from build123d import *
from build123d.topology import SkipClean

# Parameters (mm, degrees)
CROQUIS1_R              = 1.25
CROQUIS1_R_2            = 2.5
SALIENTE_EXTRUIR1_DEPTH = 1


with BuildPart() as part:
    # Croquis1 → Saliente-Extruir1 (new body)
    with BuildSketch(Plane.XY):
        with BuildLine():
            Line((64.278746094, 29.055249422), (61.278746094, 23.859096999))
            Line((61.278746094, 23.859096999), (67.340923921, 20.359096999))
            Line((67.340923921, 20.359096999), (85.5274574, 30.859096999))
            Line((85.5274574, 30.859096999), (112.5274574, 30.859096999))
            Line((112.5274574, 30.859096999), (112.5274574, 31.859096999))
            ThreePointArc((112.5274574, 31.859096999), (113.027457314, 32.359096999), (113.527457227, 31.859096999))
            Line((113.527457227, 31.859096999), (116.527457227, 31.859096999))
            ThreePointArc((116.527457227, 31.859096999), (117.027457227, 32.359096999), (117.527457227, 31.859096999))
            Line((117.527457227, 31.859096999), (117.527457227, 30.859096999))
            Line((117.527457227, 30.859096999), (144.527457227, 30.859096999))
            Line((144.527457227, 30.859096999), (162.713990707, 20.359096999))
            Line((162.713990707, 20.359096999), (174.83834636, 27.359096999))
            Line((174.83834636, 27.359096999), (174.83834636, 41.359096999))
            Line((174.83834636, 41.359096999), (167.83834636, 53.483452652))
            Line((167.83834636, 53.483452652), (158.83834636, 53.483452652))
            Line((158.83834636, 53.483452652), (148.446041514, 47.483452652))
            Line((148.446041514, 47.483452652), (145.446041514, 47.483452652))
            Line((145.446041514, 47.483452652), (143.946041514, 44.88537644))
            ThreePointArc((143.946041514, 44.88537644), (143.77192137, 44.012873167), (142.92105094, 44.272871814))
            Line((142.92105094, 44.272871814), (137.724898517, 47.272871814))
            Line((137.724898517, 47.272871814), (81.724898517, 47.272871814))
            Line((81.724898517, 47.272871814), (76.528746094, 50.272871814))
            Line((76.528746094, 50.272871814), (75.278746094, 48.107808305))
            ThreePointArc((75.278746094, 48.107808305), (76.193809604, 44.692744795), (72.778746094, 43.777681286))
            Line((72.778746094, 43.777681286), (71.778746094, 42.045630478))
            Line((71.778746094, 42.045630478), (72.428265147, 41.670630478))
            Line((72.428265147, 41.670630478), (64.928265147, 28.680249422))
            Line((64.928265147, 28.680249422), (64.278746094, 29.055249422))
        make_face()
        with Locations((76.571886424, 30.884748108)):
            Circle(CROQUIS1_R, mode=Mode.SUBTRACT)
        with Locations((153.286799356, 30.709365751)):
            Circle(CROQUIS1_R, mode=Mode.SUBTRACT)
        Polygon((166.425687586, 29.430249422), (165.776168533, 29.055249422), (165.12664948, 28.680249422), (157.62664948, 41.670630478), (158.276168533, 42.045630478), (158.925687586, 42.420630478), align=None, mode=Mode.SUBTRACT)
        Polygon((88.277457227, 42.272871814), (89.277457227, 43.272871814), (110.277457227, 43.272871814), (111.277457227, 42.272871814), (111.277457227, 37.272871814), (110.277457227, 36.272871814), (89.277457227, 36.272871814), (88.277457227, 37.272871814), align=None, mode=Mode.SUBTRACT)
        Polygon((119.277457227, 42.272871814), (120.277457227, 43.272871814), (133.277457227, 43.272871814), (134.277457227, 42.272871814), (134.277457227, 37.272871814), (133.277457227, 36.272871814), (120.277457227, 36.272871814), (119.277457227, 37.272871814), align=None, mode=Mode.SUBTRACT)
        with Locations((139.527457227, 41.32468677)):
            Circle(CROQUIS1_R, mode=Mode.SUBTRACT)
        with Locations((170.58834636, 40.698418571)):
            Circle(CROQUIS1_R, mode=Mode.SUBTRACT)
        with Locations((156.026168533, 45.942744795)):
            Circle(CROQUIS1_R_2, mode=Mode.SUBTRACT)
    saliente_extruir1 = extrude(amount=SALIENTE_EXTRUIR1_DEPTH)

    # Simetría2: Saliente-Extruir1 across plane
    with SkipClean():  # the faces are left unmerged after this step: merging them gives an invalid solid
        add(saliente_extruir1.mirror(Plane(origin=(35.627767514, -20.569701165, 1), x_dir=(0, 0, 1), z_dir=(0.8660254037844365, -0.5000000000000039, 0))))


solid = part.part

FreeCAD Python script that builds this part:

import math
import FreeCAD as App
import Part
import Sketcher
Q = App.Units.Quantity


def add_polygon(sketch, points):
    """Adds a closed chain of lines whose ends are joined by coincident constraints."""
    first, n = sketch.GeometryCount, len(points)
    for a, b in zip(points, points[1:] + points[:1]):
        sketch.addGeometry(Part.LineSegment(App.Vector(*a, 0), App.Vector(*b, 0)), False)
    for i in range(n):
        sketch.addConstraint(Sketcher.Constraint("Coincident", first + i, 2, first + (i + 1) % n, 1))

doc = App.newDocument("Part")
body = doc.addObject("PartDesign::Body", "Body")

# Sketch on XY plane
sketch1 = body.newObject("Sketcher::SketchObject", "Sketch")
sketch1.AttachmentSupport = (doc.getObject("XY_Plane"), [""])
sketch1.MapMode = "FlatFace"
sketch1.addGeometry(Part.LineSegment(App.Vector(64.28, 29.06, 0), App.Vector(61.28, 23.86, 0)), False)  # 0
sketch1.addGeometry(Part.LineSegment(App.Vector(61.28, 23.86, 0), App.Vector(67.34, 20.36, 0)), False)  # 1
sketch1.addGeometry(Part.LineSegment(App.Vector(67.34, 20.36, 0), App.Vector(85.53, 30.86, 0)), False)  # 2
sketch1.addGeometry(Part.LineSegment(App.Vector(85.53, 30.86, 0), App.Vector(112.53, 30.86, 0)), False)  # 3
sketch1.addGeometry(Part.LineSegment(App.Vector(112.53, 30.86, 0), App.Vector(112.53, 31.86, 0)), False)  # 4
sketch1.addGeometry(Part.ArcOfCircle(Part.Circle(App.Vector(113.03, 31.86, 0), App.Vector(0, 0, 1), 0.5), math.radians(0), math.radians(180)), False)  # 5
sketch1.addGeometry(Part.LineSegment(App.Vector(113.53, 31.86, 0), App.Vector(116.53, 31.86, 0)), False)  # 6
sketch1.addGeometry(Part.ArcOfCircle(Part.Circle(App.Vector(117.03, 31.86, 0), App.Vector(0, 0, 1), 0.5), math.radians(0), math.radians(180)), False)  # 7
sketch1.addGeometry(Part.LineSegment(App.Vector(117.53, 31.86, 0), App.Vector(117.53, 30.86, 0)), False)  # 8
sketch1.addGeometry(Part.LineSegment(App.Vector(117.53, 30.86, 0), App.Vector(144.53, 30.86, 0)), False)  # 9
sketch1.addGeometry(Part.LineSegment(App.Vector(144.53, 30.86, 0), App.Vector(162.71, 20.36, 0)), False)  # 10
sketch1.addGeometry(Part.LineSegment(App.Vector(162.71, 20.36, 0), App.Vector(174.84, 27.36, 0)), False)  # 11
sketch1.addGeometry(Part.LineSegment(App.Vector(174.84, 27.36, 0), App.Vector(174.84, 41.36, 0)), False)  # 12
sketch1.addGeometry(Part.LineSegment(App.Vector(174.84, 41.36, 0), App.Vector(167.84, 53.48, 0)), False)  # 13
sketch1.addGeometry(Part.LineSegment(App.Vector(167.84, 53.48, 0), App.Vector(158.84, 53.48, 0)), False)  # 14
sketch1.addGeometry(Part.LineSegment(App.Vector(158.84, 53.48, 0), App.Vector(148.45, 47.48, 0)), False)  # 15
sketch1.addGeometry(Part.LineSegment(App.Vector(148.45, 47.48, 0), App.Vector(145.45, 47.48, 0)), False)  # 16
sketch1.addGeometry(Part.LineSegment(App.Vector(145.45, 47.48, 0), App.Vector(143.95, 44.89, 0)), False)  # 17
sketch1.addGeometry(Part.ArcOfCircle(Part.Circle(App.Vector(143.46, 44.53, 0), App.Vector(0, 0, 1), 0.6), math.radians(-155), math.radians(37)), False)  # 18
sketch1.addGeometry(Part.LineSegment(App.Vector(142.92, 44.27, 0), App.Vector(137.72, 47.27, 0)), False)  # 19
sketch1.addGeometry(Part.LineSegment(App.Vector(137.72, 47.27, 0), App.Vector(81.72, 47.27, 0)), False)  # 20
sketch1.addGeometry(Part.LineSegment(App.Vector(81.72, 47.27, 0), App.Vector(76.53, 50.27, 0)), False)  # 21
sketch1.addGeometry(Part.LineSegment(App.Vector(76.53, 50.27, 0), App.Vector(75.28, 48.11, 0)), False)  # 22
sketch1.addGeometry(Part.ArcOfCircle(Part.Circle(App.Vector(74.03, 45.94, 0), App.Vector(0, 0, 1), 2.5), math.radians(-120), math.radians(60)), False)  # 23
sketch1.addGeometry(Part.LineSegment(App.Vector(72.78, 43.78, 0), App.Vector(71.78, 42.05, 0)), False)  # 24
sketch1.addGeometry(Part.LineSegment(App.Vector(71.78, 42.05, 0), App.Vector(72.43, 41.67, 0)), False)  # 25
sketch1.addGeometry(Part.LineSegment(App.Vector(72.43, 41.67, 0), App.Vector(64.93, 28.68, 0)), False)  # 26
sketch1.addGeometry(Part.LineSegment(App.Vector(64.93, 28.68, 0), App.Vector(64.28, 29.06, 0)), False)  # 27
sketch1.addGeometry(Part.Circle(App.Vector(76.57, 30.88, 0), App.Vector(0, 0, 1), 1.25), False)  # 28
sketch1.addGeometry(Part.Circle(App.Vector(153.29, 30.71, 0), App.Vector(0, 0, 1), 1.25), False)  # 29
add_polygon(sketch1, [(158.93, 42.42), (166.43, 29.43), (165.13, 28.68), (157.63, 41.67)])  # lines 30-33
add_polygon(sketch1, [(88.28, 37.27), (88.28, 42.27), (89.28, 43.27), (110.28, 43.27), (111.28, 42.27), (111.28, 37.27), (110.28, 36.27), (89.28, 36.27)])  # lines 34-41
add_polygon(sketch1, [(119.28, 37.27), (119.28, 42.27), (120.28, 43.27), (133.28, 43.27), (134.28, 42.27), (134.28, 37.27), (133.28, 36.27), (120.28, 36.27)])  # lines 42-49
sketch1.addGeometry(Part.Circle(App.Vector(139.53, 41.32, 0), App.Vector(0, 0, 1), 1.25), False)  # 50
sketch1.addGeometry(Part.Circle(App.Vector(170.59, 40.7, 0), App.Vector(0, 0, 1), 1.25), False)  # 51
sketch1.addGeometry(Part.Circle(App.Vector(156.03, 45.94, 0), App.Vector(0, 0, 1), 2.5), False)  # 52
sketch1.addConstraint(Sketcher.Constraint("Coincident", 0, 2, 1, 1))
sketch1.addConstraint(Sketcher.Constraint("Coincident", 1, 2, 2, 1))
sketch1.addConstraint(Sketcher.Constraint("Coincident", 2, 2, 3, 1))
sketch1.addConstraint(Sketcher.Constraint("Coincident", 3, 2, 4, 1))
sketch1.addConstraint(Sketcher.Constraint("Tangent", 4, 2, 5, 2))
sketch1.addConstraint(Sketcher.Constraint("Coincident", 5, 1, 6, 1))
sketch1.addConstraint(Sketcher.Constraint("Coincident", 6, 2, 7, 2))
sketch1.addConstraint(Sketcher.Constraint("Tangent", 7, 1, 8, 1))
sketch1.addConstraint(Sketcher.Constraint("Coincident", 8, 2, 9, 1))
sketch1.addConstraint(Sketcher.Constraint("Coincident", 9, 2, 10, 1))
sketch1.addConstraint(Sketcher.Constraint("Coincident", 10, 2, 11, 1))
sketch1.addConstraint(Sketcher.Constraint("Coincident", 11, 2, 12, 1))
sketch1.addConstraint(Sketcher.Constraint("Coincident", 12, 2, 13, 1))
sketch1.addConstraint(Sketcher.Constraint("Coincident", 13, 2, 14, 1))
sketch1.addConstraint(Sketcher.Constraint("Coincident", 14, 2, 15, 1))
sketch1.addConstraint(Sketcher.Constraint("Coincident", 15, 2, 16, 1))
sketch1.addConstraint(Sketcher.Constraint("Coincident", 16, 2, 17, 1))
sketch1.addConstraint(Sketcher.Constraint("Coincident", 17, 2, 18, 2))
sketch1.addConstraint(Sketcher.Constraint("Coincident", 18, 1, 19, 1))
sketch1.addConstraint(Sketcher.Constraint("Coincident", 19, 2, 20, 1))
sketch1.addConstraint(Sketcher.Constraint("Coincident", 20, 2, 21, 1))
sketch1.addConstraint(Sketcher.Constraint("Coincident", 21, 2, 22, 1))
sketch1.addConstraint(Sketcher.Constraint("Coincident", 22, 2, 23, 2))
sketch1.addConstraint(Sketcher.Constraint("Coincident", 23, 1, 24, 1))
sketch1.addConstraint(Sketcher.Constraint("Coincident", 24, 2, 25, 1))
sketch1.addConstraint(Sketcher.Constraint("Coincident", 25, 2, 26, 1))
sketch1.addConstraint(Sketcher.Constraint("Coincident", 26, 2, 27, 1))
sketch1.addConstraint(Sketcher.Constraint("Coincident", 27, 2, 0, 1))
sketch1.addConstraint(Sketcher.Constraint("Horizontal", 3))
sketch1.addConstraint(Sketcher.Constraint("Vertical", 4))
sketch1.addConstraint(Sketcher.Constraint("Horizontal", 6))
sketch1.addConstraint(Sketcher.Constraint("Vertical", 8))
sketch1.addConstraint(Sketcher.Constraint("Horizontal", 9))
sketch1.addConstraint(Sketcher.Constraint("Vertical", 12))
sketch1.addConstraint(Sketcher.Constraint("Horizontal", 14))
sketch1.addConstraint(Sketcher.Constraint("Horizontal", 16))
sketch1.addConstraint(Sketcher.Constraint("Horizontal", 20))
sketch1.addConstraint(Sketcher.Constraint("Vertical", 34))
sketch1.addConstraint(Sketcher.Constraint("Horizontal", 36))
sketch1.addConstraint(Sketcher.Constraint("Vertical", 38))
sketch1.addConstraint(Sketcher.Constraint("Horizontal", 40))
sketch1.addConstraint(Sketcher.Constraint("Vertical", 42))
sketch1.addConstraint(Sketcher.Constraint("Horizontal", 44))
sketch1.addConstraint(Sketcher.Constraint("Vertical", 46))
sketch1.addConstraint(Sketcher.Constraint("Horizontal", 48))
sketch1.addConstraint(Sketcher.Constraint("Equal", 5, 7))
sketch1.addConstraint(Sketcher.Constraint("Equal", 28, 29))
sketch1.addConstraint(Sketcher.Constraint("Equal", 29, 50))
sketch1.addConstraint(Sketcher.Constraint("Equal", 50, 51))
sketch1.addConstraint(Sketcher.Constraint("Equal", 23, 52))
sketch1.addConstraint(Sketcher.Constraint("Perpendicular", 0, 1))
sketch1.addConstraint(Sketcher.Constraint("Parallel", 1, 10))
sketch1.addConstraint(Sketcher.Constraint("Parallel", 2, 11))
sketch1.addConstraint(Sketcher.Constraint("Perpendicular", 11, 13))
sketch1.addConstraint(Sketcher.Constraint("Perpendicular", 13, 15))
sketch1.addConstraint(Sketcher.Constraint("Perpendicular", 10, 17))
sketch1.addConstraint(Sketcher.Constraint("Perpendicular", 17, 19))
sketch1.addConstraint(Sketcher.Constraint("Parallel", 19, 21))
sketch1.addConstraint(Sketcher.Constraint("Perpendicular", 21, 22))
sketch1.addConstraint(Sketcher.Constraint("Parallel", 22, 24))
sketch1.addConstraint(Sketcher.Constraint("Perpendicular", 24, 25))
sketch1.addConstraint(Sketcher.Constraint("Perpendicular", 25, 26))
sketch1.addConstraint(Sketcher.Constraint("Perpendicular", 26, 27))
sketch1.addConstraint(Sketcher.Constraint("Perpendicular", 15, 30))
sketch1.addConstraint(Sketcher.Constraint("Perpendicular", 30, 31))
sketch1.addConstraint(Sketcher.Constraint("Perpendicular", 31, 32))
sketch1.addConstraint(Sketcher.Constraint("Perpendicular", 32, 33))
sketch1.addConstraint(Sketcher.Constraint("Perpendicular", 35, 37))
sketch1.addConstraint(Sketcher.Constraint("Perpendicular", 37, 39))
sketch1.addConstraint(Sketcher.Constraint("Perpendicular", 39, 41))
sketch1.addConstraint(Sketcher.Constraint("Perpendicular", 41, 43))
sketch1.addConstraint(Sketcher.Constraint("Perpendicular", 43, 45))
sketch1.addConstraint(Sketcher.Constraint("Perpendicular", 45, 47))
sketch1.addConstraint(Sketcher.Constraint("Perpendicular", 47, 49))
sketch1.addConstraint(Sketcher.Constraint("Horizontal", 5, 3, 7, 3))
sketch1.addConstraint(Sketcher.Constraint("Horizontal", 23, 3, 52, 3))
sketch1.addConstraint(Sketcher.Constraint("Horizontal", 4, 2, 5, 1))
sketch1.addConstraint(Sketcher.Constraint("Horizontal", 3, 2, 8, 2))
sketch1.addConstraint(Sketcher.Constraint("Horizontal", 1, 2, 10, 2))
sketch1.addConstraint(Sketcher.Constraint("Horizontal", 26, 2, 31, 2))
sketch1.addConstraint(Sketcher.Constraint("Horizontal", 25, 2, 32, 2))
sketch1.addConstraint(Sketcher.Constraint("Horizontal", 34, 2, 37, 2))
sketch1.addConstraint(Sketcher.Constraint("Horizontal", 38, 2, 41, 2))
sketch1.addConstraint(Sketcher.Constraint("Horizontal", 37, 2, 42, 2))
sketch1.addConstraint(Sketcher.Constraint("Horizontal", 36, 2, 43, 2))
sketch1.addConstraint(Sketcher.Constraint("Horizontal", 42, 2, 45, 2))
sketch1.addConstraint(Sketcher.Constraint("Horizontal", 41, 2, 46, 2))
sketch1.addConstraint(Sketcher.Constraint("Horizontal", 40, 2, 47, 2))
sketch1.addConstraint(Sketcher.Constraint("Horizontal", 46, 2, 49, 2))
sketch1.addConstraint(Sketcher.Constraint("Vertical", 36, 2, 39, 2))
sketch1.addConstraint(Sketcher.Constraint("Vertical", 35, 2, 40, 2))
sketch1.addConstraint(Sketcher.Constraint("Equal", 3, 9))
sketch1.addConstraint(Sketcher.Constraint("Equal", 6, 16))
sketch1.addConstraint(Sketcher.Constraint("Equal", 2, 10))
sketch1.addConstraint(Sketcher.Constraint("Equal", 11, 13))
sketch1.addConstraint(Sketcher.Constraint("Equal", 0, 19))
sketch1.addConstraint(Sketcher.Constraint("Equal", 19, 21))
sketch1.addConstraint(Sketcher.Constraint("Equal", 25, 27))
sketch1.addConstraint(Sketcher.Constraint("Diameter", 52, 5.0))
sketch1.addConstraint(Sketcher.Constraint("Diameter", 28, 2.5))
sketch1.addConstraint(Sketcher.Constraint("Radius", 5, 0.5))
sketch1.addConstraint(Sketcher.Constraint("Radius", 18, 0.6))
sketch1.addConstraint(Sketcher.Constraint("DistanceX", 3, 1, 3, 2, 27.0))
sketch1.addConstraint(Sketcher.Constraint("DistanceX", 6, 1, 6, 2, 3.0))
sketch1.addConstraint(Sketcher.Constraint("DistanceX", 14, 2, 14, 1, 9.0))
sketch1.addConstraint(Sketcher.Constraint("DistanceX", 20, 2, 20, 1, 56.0))
sketch1.addConstraint(Sketcher.Constraint("DistanceX", 36, 1, 36, 2, 21.0))
sketch1.addConstraint(Sketcher.Constraint("DistanceX", 44, 1, 44, 2, 13.0))
sketch1.addConstraint(Sketcher.Constraint("DistanceY", 4, 1, 4, 2, 1.0))
sketch1.addConstraint(Sketcher.Constraint("DistanceY", 12, 1, 12, 2, 14.0))
sketch1.addConstraint(Sketcher.Constraint("DistanceY", 34, 1, 34, 2, 5.0))
sketch1.addConstraint(Sketcher.Constraint("Angle", 0, Q("-120 deg")))
sketch1.addConstraint(Sketcher.Constraint("Distance", 0, 6.0))
sketch1.addConstraint(Sketcher.Constraint("Distance", 1, 7.0))
sketch1.addConstraint(Sketcher.Constraint("Distance", 2, 21.0))
sketch1.addConstraint(Sketcher.Constraint("Distance", 11, 14.0))
sketch1.addConstraint(Sketcher.Constraint("Distance", 15, 12.0))
sketch1.addConstraint(Sketcher.Constraint("Distance", 17, 3.0))
sketch1.addConstraint(Sketcher.Constraint("Distance", 24, 2.0))
sketch1.addConstraint(Sketcher.Constraint("Distance", 26, 15.0))
sketch1.addConstraint(Sketcher.Constraint("DistanceX", 3, 2, 50, 3, 27.0))
sketch1.addConstraint(Sketcher.Constraint("DistanceY", 34, 2, 20, 2, 5.0))
sketch1.addConstraint(Sketcher.Constraint("DistanceX", 34, 2, 35, 2, 1.0))
sketch1.addConstraint(Sketcher.Constraint("DistanceX", 37, 2, 42, 2, 8.0))
sketch1.addConstraint(Sketcher.Constraint("Distance", 22, 2.5))
sketch1.addConstraint(Sketcher.Constraint("Distance", 31, 1.5))
sketch1.addConstraint(Sketcher.Constraint("DistanceX", 23, 3, 21, 2, 2.5))
sketch1.addConstraint(Sketcher.Constraint("DistanceX", 23, 1, 22, 2, 2.5))
sketch1.addConstraint(Sketcher.Constraint("Distance", 25, 0.75))
sketch1.addConstraint(Sketcher.Constraint("DistanceX", 51, 3, 11, 2, 4.25))
sketch1.addConstraint(Sketcher.Constraint("DistanceX", 2, 2, 34, 2, 2.75))
sketch1.addConstraint(Sketcher.Constraint("DistanceX", -1, 1, 29, 3, 153.286799))
sketch1.addConstraint(Sketcher.Constraint("DistanceX", -1, 1, 19, 2, 137.724899))
sketch1.addConstraint(Sketcher.Constraint("DistanceY", 51, 3, 18, 3, 3.829501))
sketch1.addConstraint(Sketcher.Constraint("DistanceY", 26, 2, 28, 3, 2.204499))
sketch1.addConstraint(Sketcher.Constraint("DistanceY", -1, 1, 18, 3, 44.52792))
sketch1.addConstraint(Sketcher.Constraint("DistanceX", -1, 1, 52, 3, 156.026169))
sketch1.addConstraint(Sketcher.Constraint("DistanceX", -1, 1, 31, 2, 165.126649))
sketch1.addConstraint(Sketcher.Constraint("DistanceX", 23, 3, 28, 3, 2.54314))
sketch1.addConstraint(Sketcher.Constraint("DistanceY", 29, 3, 7, 3, 1.149731))
sketch1.addConstraint(Sketcher.Constraint("DistanceY", 29, 3, 50, 3, 10.615321))
pad1 = body.newObject("PartDesign::Pad", "Pad")
pad1.Profile = sketch1
pad1.Length = 1
doc.recompute()

datumplane = body.newObject("PartDesign::Plane", "DatumPlane")
datumplane.Placement = App.Placement(App.Vector(35.627768, -20.569701, 0), App.Rotation(App.Vector(-0.5, -0.866025404, 0), App.Vector(0, 0, -1), App.Vector(0.866025404, -0.5, 0), "ZXY"))
mirrored = body.newObject("PartDesign::Mirrored", "Mirrored")
mirrored.Originals = [pad1]
mirrored.MirrorPlane = (datumplane, [""])
body.Tip = mirrored

doc.recompute()
